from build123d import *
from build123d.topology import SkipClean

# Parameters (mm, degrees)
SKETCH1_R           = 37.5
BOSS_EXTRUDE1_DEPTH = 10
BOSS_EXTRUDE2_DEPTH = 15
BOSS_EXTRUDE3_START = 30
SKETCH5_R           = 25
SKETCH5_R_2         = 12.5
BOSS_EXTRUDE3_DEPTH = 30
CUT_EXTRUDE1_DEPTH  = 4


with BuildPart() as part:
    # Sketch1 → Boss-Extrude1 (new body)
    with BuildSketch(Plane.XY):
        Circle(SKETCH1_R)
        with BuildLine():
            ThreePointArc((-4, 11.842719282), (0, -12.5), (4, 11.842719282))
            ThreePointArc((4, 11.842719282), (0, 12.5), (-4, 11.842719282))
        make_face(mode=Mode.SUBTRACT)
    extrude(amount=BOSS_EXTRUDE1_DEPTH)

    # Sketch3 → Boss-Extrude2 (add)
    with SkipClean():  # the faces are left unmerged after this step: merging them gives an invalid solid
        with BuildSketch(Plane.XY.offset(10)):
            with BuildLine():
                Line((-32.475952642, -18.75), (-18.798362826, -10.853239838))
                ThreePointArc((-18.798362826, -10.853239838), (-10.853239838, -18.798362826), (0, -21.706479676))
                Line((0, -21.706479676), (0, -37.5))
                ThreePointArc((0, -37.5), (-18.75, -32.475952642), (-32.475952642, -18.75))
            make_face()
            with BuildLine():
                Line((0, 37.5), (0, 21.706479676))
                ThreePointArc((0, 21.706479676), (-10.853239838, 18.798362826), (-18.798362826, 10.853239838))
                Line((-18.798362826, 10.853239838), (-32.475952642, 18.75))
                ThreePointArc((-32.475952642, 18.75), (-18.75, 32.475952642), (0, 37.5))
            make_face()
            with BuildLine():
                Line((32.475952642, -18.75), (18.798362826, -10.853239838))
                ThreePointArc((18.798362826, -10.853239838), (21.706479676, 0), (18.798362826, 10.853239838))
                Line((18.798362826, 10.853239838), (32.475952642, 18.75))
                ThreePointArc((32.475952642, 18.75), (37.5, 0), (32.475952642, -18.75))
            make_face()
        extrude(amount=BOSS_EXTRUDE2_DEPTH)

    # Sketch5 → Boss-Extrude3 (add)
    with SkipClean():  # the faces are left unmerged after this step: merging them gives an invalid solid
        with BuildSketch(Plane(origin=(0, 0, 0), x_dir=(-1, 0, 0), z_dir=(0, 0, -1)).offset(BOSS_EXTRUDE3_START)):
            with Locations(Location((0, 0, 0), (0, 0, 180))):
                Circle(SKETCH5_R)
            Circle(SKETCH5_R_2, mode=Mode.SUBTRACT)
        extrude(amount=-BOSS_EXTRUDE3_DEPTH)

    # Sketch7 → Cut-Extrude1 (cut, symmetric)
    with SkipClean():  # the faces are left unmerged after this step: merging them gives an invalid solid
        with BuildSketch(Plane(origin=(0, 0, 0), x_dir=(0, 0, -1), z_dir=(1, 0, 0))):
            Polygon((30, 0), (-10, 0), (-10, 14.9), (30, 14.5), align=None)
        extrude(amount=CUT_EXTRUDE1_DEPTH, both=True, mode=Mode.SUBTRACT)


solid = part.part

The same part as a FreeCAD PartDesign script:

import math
import FreeCAD as App
import Part
import Sketcher
from FreeCAD import Vector
Q = App.Units.Quantity


def add_polygon(sketch, points):
    """Adds a closed chain of lines whose ends are joined by coincident constraints."""
    first, n = sketch.GeometryCount, len(points)
    for a, b in zip(points, points[1:] + points[:1]):
        sketch.addGeometry(Part.LineSegment(App.Vector(*a, 0), App.Vector(*b, 0)), False)
    for i in range(n):
        sketch.addConstraint(Sketcher.Constraint("Coincident", first + i, 2, first + (i + 1) % n, 1))

doc = App.newDocument("Part")
body = doc.addObject("PartDesign::Body", "Body")

# Sketch on XY plane
sketch1 = doc.addObject("Sketcher::SketchObject", "Sketch")
body.addObject(sketch1)
sketch1.AttachmentSupport = (doc.XY_Plane, [""])
sketch1.MapMode = "FlatFace"
sketch1.addGeometry([
    Part.Circle(Vector(0, 0, 0), Vector(0, 0, 1), 38),
    Part.ArcOfCircle(Part.Circle(Vector(0, 0, 0), Vector(0, 0, 1), 12), math.radians(109), math.radians(431)),
    Part.ArcOfCircle(Part.Circle(Vector(0, 0, 0), Vector(0, 0, 1), 12), math.radians(71), math.radians(109)),
], False)
sketch1.addConstraint([
    Sketcher.Constraint("Tangent", 1, 1, 2, 2),
    Sketcher.Constraint("Coincident", 2, 1, 1, 2),
    Sketcher.Constraint("Coincident", 0, 3, -1, 1),
    Sketcher.Constraint("Coincident", 1, 3, -1, 1),
    Sketcher.Constraint("Horizontal", 1, 1, 2, 1),
    Sketcher.Constraint("Diameter", 0, 75.0),
    Sketcher.Constraint("Radius", 1, 12.5),
    Sketcher.Constraint("DistanceX", 1, 1, -1, 1, 4.0),
])
pad1 = doc.addObject("PartDesign::Pad", "Pad")
body.addObject(pad1)
pad1.Profile = sketch1
pad1.Length = 10

# Sketch on XY plane
sketch2 = doc.addObject("Sketcher::SketchObject", "Sketch001")
body.addObject(sketch2)
sketch2.AttachmentSupport = (doc.XY_Plane, [""])
sketch2.MapMode = "FlatFace"
sketch2.AttachmentOffset = App.Placement(Vector(0, 0, 10), App.Rotation())
sketch2.addGeometry([
    Part.LineSegment(Vector(-19, -11, 0), Vector(-32, -19, 0)),  # 0
    Part.ArcOfCircle(Part.Circle(Vector(0, 0, 0), Vector(0, 0, 1), 38), math.radians(-150), math.radians(-90)),  # 1
    Part.LineSegment(Vector(0, -38, 0), Vector(0, -22, 0)),  # 2
    Part.ArcOfCircle(Part.Circle(Vector(0, 0, 0), Vector(0, 0, 1), 22), math.radians(-150), math.radians(-90)),  # 3
    Part.LineSegment(Vector(0, 22, 0), Vector(0, 38, 0)),  # 4
    Part.ArcOfCircle(Part.Circle(Vector(0, 0, 0), Vector(0, 0, 1), 38), math.radians(90), math.radians(150)),  # 5
    Part.LineSegment(Vector(-32, 19, 0), Vector(-19, 11, 0)),  # 6
    Part.ArcOfCircle(Part.Circle(Vector(0, 0, 0), Vector(0, 0, 1), 22), math.radians(90), math.radians(150)),  # 7
    Part.LineSegment(Vector(19, -11, 0), Vector(32, -19, 0)),  # 8
    Part.ArcOfCircle(Part.Circle(Vector(0, 0, 0), Vector(0, 0, 1), 38), math.radians(-30), math.radians(30)),  # 9
    Part.LineSegment(Vector(32, 19, 0), Vector(19, 11, 0)),  # 10
    Part.ArcOfCircle(Part.Circle(Vector(0, 0, 0), Vector(0, 0, 1), 22), math.radians(-30), math.radians(30)),  # 11
], False)
sketch2.addConstraint([
    Sketcher.Constraint("Coincident", 0, 2, 1, 1),
    Sketcher.Constraint("Coincident", 1, 2, 2, 1),
    Sketcher.Constraint("Coincident", 2, 2, 3, 2),
    Sketcher.Constraint("Coincident", 3, 1, 0, 1),
    Sketcher.Constraint("Coincident", 4, 2, 5, 1),
    Sketcher.Constraint("Coincident", 5, 2, 6, 1),
    Sketcher.Constraint("Coincident", 6, 2, 7, 2),
    Sketcher.Constraint("Coincident", 7, 1, 4, 1),
    Sketcher.Constraint("Coincident", 8, 2, 9, 1),
    Sketcher.Constraint("Coincident", 9, 2, 10, 1),
    Sketcher.Constraint("Coincident", 10, 2, 11, 2),
    Sketcher.Constraint("Coincident", 11, 1, 8, 1),
    Sketcher.Constraint("Vertical", 2),
    Sketcher.Constraint("Vertical", 4),
    Sketcher.Constraint("Coincident", 1, 3, -1, 1),
    Sketcher.Constraint("Coincident", 3, 3, -1, 1),
    Sketcher.Constraint("Coincident", 5, 3, -1, 1),
    Sketcher.Constraint("Coincident", 7, 3, -1, 1),
    Sketcher.Constraint("Coincident", 9, 3, -1, 1),
    Sketcher.Constraint("Coincident", 11, 3, -1, 1),
    Sketcher.Constraint("Equal", 1, 5),
    Sketcher.Constraint("Equal", 3, 7),
    Sketcher.Constraint("Equal", 5, 9),
    Sketcher.Constraint("Equal", 7, 11),
    Sketcher.Constraint("PointOnObject", 1, 2, -2),
    Sketcher.Constraint("PointOnObject", 4, 2, -2),
    Sketcher.Constraint("Parallel", 6, 8),
    Sketcher.Constraint("Parallel", 0, 10),
    Sketcher.Constraint("Horizontal", 0, 2, 8, 2),
    Sketcher.Constraint("Horizontal", 5, 2, 9, 2),
    Sketcher.Constraint("Horizontal", 6, 2, 10, 2),
    Sketcher.Constraint("Vertical", 0, 2, 5, 2),
    Sketcher.Constraint("Radius", 1, 37.5),
    Sketcher.Constraint("Angle", 0, Q("-150 deg")),
    Sketcher.Constraint("DistanceY", 0, 2, 5, 2, 37.5),
    Sketcher.Constraint("Radius", 3, 21.70648),
])
pad2 = doc.addObject("PartDesign::Pad", "Pad001")
body.addObject(pad2)
pad2.Profile = sketch2
pad2.Length = 15

# Sketch on XY plane
sketch3 = doc.addObject("Sketcher::SketchObject", "Sketch002")
body.addObject(sketch3)
sketch3.AttachmentSupport = (doc.XY_Plane, [""])
sketch3.MapMode = "FlatFace"
sketch3.AttachmentOffset = App.Placement(Vector(0, 0, -30), App.Rotation())
sketch3.addGeometry([
    Part.Circle(Vector(0, 0, 0), Vector(0, 0, 1), 25),
    Part.Circle(Vector(0, 0, 0), Vector(0, 0, 1), 12),
], False)
sketch3.addConstraint([
    Sketcher.Constraint("Coincident", 0, 3, -1, 1),
    Sketcher.Constraint("Coincident", 1, 3, -1, 1),
    Sketcher.Constraint("Diameter", 0, 50.0),
    Sketcher.Constraint("Diameter", 1, 25.0),
])
pad3 = doc.addObject("PartDesign::Pad", "Pad002")
body.addObject(pad3)
pad3.Profile = sketch3
pad3.Length = 30

# Sketch on YZ plane
sketch4 = doc.addObject("Sketcher::SketchObject", "Sketch003")
body.addObject(sketch4)
sketch4.AttachmentSupport = (doc.YZ_Plane, [""])
sketch4.MapMode = "FlatFace"
add_polygon(sketch4, [(0, 10), (0, -30), (14, -30), (15, 10)])  # lines 0-3
sketch4.addConstraint([
    Sketcher.Constraint("Vertical", 0),
    Sketcher.Constraint("Horizontal", 1),
    Sketcher.Constraint("Horizontal", 3),
    Sketcher.Constraint("PointOnObject", 0, 2, -2),
    Sketcher.Constraint("DistanceY", 0, 2, 0, 1, 40.0),
    Sketcher.Constraint("DistanceX", 1, 1, 1, 2, 14.5),
    Sketcher.Constraint("DistanceX", 3, 2, 3, 1, 14.9),
    Sketcher.Constraint("DistanceY", 0, 2, -1, 1, 30.0),
])
pocket1 = doc.addObject("PartDesign::Pocket", "Pocket")
body.addObject(pocket1)
pocket1.Profile = sketch4
pocket1.Length = 8
pocket1.Midplane = True

doc.recompute()
